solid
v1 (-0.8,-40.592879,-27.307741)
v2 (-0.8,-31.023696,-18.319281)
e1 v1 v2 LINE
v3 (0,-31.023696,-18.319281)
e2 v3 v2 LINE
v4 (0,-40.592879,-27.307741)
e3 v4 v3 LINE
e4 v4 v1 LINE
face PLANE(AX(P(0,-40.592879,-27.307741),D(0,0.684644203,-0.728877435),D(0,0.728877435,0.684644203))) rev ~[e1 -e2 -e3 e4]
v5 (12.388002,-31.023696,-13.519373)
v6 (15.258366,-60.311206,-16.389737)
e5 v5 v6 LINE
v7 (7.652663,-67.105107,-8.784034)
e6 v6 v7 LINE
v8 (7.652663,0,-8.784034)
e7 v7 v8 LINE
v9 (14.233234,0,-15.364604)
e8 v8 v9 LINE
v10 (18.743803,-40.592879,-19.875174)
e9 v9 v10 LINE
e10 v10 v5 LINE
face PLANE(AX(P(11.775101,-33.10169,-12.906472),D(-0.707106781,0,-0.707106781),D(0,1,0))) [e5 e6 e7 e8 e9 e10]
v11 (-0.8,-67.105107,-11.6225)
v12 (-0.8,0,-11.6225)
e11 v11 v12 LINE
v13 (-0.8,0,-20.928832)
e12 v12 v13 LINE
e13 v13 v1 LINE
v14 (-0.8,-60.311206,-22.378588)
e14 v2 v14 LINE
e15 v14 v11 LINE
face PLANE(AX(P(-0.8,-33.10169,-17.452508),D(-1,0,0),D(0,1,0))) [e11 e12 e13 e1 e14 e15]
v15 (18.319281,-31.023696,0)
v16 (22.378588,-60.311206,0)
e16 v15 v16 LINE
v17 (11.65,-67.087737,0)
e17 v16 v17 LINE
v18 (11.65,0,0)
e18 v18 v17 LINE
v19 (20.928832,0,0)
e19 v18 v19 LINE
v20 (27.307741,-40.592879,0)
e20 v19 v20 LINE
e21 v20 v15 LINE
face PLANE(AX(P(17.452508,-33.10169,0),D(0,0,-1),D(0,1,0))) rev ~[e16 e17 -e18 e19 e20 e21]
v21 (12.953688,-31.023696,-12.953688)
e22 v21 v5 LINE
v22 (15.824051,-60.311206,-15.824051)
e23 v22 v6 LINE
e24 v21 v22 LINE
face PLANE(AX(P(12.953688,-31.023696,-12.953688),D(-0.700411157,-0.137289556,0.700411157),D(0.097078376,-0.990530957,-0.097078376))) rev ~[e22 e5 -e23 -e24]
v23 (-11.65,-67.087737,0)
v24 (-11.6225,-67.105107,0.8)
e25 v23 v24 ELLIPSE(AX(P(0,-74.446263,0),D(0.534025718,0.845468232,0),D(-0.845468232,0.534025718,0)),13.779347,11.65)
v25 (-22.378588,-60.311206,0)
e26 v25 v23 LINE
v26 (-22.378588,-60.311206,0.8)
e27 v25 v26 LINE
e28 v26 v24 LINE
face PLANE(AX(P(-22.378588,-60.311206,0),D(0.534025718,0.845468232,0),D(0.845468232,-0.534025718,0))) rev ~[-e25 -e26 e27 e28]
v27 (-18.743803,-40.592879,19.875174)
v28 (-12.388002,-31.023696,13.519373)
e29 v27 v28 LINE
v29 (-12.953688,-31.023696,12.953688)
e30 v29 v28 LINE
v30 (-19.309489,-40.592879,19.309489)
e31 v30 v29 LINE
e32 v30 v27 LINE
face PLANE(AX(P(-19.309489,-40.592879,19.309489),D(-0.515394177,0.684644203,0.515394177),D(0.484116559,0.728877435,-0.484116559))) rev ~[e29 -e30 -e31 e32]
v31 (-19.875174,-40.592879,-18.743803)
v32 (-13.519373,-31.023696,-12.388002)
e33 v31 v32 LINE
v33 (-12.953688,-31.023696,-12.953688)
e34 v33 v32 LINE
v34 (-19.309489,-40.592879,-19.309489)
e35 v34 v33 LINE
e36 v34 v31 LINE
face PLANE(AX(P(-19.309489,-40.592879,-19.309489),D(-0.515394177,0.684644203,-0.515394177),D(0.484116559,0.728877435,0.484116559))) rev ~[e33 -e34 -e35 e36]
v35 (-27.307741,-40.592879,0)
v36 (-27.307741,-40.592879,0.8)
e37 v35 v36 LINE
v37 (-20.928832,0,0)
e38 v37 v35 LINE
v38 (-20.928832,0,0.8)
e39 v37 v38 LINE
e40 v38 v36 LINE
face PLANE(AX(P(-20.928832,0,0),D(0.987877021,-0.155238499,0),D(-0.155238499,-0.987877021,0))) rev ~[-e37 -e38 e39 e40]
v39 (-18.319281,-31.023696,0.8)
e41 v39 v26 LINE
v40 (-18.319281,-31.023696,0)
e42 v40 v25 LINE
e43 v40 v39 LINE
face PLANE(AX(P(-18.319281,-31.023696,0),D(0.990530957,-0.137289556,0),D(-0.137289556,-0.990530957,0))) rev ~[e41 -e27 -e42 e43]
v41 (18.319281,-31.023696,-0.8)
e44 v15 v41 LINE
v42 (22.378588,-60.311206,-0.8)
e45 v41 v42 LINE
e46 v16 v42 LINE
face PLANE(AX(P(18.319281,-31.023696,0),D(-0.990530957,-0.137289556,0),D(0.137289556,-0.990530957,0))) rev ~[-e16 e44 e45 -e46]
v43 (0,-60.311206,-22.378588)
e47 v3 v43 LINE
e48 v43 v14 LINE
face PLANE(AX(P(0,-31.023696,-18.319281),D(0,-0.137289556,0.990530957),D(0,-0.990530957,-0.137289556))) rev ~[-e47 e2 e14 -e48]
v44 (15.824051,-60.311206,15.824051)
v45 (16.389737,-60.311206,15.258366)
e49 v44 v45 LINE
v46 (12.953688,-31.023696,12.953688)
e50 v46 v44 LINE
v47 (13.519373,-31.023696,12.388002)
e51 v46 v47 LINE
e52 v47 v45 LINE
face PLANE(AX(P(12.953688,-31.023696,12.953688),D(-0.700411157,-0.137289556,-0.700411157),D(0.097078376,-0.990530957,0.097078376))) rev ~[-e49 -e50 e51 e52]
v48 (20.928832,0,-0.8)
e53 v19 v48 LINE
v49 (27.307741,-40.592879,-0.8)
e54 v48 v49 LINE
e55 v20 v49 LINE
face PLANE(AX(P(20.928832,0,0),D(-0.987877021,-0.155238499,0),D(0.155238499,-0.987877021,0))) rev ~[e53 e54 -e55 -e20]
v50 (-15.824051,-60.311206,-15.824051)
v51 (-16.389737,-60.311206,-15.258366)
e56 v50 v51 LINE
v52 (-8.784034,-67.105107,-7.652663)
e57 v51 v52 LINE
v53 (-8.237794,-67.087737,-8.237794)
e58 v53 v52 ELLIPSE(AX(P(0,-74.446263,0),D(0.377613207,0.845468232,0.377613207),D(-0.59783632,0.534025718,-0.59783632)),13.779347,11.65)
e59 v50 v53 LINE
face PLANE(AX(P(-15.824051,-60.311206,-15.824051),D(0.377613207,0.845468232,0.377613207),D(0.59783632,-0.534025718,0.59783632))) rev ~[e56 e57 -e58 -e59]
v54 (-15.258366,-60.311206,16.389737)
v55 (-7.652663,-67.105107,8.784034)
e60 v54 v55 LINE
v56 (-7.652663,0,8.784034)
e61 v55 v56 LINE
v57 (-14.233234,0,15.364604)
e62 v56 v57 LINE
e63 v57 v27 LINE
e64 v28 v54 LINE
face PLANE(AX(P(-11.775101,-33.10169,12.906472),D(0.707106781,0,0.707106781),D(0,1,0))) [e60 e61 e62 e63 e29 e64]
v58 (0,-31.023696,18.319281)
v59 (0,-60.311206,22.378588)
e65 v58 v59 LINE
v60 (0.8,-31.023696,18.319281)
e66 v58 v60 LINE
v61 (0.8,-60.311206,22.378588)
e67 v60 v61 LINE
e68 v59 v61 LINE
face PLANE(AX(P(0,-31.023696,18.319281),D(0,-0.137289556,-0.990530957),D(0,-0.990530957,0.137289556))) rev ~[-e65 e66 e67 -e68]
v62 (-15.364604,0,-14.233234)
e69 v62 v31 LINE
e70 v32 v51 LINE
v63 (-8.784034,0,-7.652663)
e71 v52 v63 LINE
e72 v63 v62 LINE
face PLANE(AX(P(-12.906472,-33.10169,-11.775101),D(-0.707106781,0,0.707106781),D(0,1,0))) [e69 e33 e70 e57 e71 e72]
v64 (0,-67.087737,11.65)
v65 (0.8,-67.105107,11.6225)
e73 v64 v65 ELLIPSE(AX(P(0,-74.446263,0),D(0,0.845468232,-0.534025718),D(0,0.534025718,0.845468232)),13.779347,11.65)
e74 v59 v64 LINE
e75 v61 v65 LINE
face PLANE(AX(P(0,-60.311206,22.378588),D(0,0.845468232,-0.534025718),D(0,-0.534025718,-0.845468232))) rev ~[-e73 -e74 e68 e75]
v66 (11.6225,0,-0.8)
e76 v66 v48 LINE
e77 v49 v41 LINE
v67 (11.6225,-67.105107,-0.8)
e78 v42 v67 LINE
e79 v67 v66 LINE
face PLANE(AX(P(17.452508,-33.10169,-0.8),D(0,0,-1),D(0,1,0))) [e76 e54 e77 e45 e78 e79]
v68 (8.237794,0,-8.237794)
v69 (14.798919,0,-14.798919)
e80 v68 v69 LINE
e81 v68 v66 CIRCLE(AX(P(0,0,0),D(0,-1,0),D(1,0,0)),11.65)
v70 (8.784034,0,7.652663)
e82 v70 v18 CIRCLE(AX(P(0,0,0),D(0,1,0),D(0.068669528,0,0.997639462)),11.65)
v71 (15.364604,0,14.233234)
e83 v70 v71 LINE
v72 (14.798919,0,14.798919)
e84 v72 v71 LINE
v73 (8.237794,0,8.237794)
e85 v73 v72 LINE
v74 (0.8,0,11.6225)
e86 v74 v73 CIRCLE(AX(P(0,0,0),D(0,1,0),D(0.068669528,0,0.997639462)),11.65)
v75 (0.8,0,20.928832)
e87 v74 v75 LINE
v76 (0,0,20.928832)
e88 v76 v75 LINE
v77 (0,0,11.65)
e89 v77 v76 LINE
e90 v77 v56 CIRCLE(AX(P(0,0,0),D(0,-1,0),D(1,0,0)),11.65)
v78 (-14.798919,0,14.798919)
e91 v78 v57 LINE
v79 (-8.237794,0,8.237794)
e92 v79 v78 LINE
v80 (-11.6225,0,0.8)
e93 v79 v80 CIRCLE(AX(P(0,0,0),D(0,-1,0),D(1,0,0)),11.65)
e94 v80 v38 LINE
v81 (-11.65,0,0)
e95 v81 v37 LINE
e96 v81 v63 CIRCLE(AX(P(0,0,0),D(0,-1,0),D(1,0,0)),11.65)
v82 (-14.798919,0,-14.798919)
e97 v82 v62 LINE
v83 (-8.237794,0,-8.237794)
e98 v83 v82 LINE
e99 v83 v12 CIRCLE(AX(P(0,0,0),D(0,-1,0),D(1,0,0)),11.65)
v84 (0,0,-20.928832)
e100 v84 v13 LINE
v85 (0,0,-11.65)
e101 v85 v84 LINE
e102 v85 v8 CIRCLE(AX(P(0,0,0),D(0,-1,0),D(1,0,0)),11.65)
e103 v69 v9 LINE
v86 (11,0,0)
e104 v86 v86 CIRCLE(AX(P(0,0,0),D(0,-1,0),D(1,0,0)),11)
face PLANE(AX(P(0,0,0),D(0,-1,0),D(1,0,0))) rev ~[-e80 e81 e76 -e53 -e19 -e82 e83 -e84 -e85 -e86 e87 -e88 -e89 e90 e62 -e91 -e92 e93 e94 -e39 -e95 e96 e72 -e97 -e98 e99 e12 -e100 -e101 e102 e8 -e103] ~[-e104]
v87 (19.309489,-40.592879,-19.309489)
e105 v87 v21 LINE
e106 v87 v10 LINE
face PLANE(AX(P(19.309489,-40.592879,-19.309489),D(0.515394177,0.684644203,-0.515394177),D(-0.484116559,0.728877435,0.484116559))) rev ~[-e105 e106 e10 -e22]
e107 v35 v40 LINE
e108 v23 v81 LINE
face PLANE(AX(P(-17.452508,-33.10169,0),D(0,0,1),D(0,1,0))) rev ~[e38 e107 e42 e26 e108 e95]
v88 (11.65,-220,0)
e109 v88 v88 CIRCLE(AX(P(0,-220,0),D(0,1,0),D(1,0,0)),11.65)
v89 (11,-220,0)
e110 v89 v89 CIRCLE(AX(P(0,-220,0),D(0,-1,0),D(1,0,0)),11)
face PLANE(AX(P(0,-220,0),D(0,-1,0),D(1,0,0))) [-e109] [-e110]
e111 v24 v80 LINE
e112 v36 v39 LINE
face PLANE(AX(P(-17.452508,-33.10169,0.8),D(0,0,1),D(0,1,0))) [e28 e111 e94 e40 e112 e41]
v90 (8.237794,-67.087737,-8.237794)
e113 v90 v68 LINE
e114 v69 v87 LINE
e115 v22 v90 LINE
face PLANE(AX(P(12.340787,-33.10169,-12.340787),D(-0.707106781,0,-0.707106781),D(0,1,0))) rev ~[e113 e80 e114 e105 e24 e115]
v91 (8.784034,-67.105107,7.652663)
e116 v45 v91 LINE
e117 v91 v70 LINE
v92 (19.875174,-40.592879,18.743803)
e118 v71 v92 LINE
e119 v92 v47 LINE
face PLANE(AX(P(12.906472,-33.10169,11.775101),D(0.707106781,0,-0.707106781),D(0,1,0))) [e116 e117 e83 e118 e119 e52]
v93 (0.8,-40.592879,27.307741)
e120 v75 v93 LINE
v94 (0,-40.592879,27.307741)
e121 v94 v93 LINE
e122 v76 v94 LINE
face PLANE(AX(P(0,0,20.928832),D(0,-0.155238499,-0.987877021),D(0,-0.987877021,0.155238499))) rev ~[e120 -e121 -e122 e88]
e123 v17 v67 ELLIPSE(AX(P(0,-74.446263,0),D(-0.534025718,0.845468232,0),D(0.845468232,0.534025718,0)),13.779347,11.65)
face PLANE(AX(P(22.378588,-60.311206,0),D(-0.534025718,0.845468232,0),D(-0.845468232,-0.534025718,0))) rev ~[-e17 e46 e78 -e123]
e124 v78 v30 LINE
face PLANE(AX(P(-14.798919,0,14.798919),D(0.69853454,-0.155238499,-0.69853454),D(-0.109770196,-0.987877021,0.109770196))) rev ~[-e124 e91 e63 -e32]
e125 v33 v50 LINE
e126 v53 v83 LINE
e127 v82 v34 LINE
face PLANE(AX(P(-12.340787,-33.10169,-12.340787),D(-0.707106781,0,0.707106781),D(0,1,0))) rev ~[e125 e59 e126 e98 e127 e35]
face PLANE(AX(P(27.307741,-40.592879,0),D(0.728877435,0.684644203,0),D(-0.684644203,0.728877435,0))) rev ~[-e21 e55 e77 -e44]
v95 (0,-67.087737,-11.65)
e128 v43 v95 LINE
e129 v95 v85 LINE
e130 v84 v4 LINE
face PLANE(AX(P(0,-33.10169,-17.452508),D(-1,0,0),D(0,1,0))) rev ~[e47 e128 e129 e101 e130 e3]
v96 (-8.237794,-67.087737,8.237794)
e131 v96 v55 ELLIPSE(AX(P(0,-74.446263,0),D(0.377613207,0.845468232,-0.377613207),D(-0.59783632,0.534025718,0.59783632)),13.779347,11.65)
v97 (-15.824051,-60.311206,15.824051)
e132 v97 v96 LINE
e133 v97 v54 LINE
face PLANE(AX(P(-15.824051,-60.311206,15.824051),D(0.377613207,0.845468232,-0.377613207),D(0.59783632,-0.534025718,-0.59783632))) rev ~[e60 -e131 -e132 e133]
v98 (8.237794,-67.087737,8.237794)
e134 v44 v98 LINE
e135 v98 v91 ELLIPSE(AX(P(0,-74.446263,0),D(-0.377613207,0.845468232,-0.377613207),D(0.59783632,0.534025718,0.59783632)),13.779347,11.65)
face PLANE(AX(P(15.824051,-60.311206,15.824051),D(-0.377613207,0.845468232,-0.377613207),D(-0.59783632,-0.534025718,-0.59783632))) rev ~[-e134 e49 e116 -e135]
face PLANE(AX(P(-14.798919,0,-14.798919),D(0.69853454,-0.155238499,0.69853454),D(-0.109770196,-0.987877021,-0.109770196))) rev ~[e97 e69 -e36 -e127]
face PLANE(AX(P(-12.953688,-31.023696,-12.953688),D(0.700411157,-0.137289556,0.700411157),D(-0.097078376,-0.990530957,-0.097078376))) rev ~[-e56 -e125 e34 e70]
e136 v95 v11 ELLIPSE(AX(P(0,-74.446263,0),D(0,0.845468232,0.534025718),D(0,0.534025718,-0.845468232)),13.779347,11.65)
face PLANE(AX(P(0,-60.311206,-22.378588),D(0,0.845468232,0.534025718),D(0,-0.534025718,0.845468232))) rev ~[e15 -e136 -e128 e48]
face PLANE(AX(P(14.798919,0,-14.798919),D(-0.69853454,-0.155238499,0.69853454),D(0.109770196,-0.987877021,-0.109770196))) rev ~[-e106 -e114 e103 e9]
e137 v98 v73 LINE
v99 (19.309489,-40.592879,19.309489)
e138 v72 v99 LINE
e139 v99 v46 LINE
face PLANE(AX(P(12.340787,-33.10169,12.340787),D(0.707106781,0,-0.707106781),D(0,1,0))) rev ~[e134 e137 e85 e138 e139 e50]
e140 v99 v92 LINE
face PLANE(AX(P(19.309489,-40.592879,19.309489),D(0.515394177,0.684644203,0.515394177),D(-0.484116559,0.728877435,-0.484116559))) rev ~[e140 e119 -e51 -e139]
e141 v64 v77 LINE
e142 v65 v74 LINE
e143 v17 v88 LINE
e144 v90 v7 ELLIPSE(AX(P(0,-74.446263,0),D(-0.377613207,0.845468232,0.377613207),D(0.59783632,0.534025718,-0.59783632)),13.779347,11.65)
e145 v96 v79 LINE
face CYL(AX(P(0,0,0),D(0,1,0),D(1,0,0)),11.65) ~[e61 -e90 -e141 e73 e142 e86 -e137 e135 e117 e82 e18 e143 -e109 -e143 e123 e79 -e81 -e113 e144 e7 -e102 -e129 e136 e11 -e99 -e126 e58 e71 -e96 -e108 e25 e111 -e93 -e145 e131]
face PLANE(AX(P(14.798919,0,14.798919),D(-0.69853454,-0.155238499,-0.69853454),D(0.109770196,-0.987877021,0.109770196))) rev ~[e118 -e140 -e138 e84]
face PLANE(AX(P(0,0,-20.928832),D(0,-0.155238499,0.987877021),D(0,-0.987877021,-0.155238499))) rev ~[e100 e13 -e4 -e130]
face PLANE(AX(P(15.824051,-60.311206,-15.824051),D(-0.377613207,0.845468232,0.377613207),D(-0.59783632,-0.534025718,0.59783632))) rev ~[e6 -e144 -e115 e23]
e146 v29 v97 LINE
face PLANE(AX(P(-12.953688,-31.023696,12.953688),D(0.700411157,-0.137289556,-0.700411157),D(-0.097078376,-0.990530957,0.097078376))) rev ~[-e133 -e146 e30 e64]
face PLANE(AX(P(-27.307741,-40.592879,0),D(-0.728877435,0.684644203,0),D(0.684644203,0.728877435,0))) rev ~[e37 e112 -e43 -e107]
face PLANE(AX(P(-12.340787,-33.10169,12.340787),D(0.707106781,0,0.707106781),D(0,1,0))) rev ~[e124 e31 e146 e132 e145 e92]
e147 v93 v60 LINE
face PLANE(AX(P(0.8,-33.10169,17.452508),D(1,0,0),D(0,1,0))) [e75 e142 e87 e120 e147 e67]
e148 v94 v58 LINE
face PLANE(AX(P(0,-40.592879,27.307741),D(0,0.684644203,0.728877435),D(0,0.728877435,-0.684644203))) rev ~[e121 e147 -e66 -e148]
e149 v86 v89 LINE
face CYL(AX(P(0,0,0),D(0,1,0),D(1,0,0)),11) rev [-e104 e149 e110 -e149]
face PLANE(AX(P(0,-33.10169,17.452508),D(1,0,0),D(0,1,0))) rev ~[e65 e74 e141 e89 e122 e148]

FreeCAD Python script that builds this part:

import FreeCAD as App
import Part
import Sketcher

V = App.Vector
Q = App.Units.Quantity

doc = App.newDocument("Part")
body = doc.addObject("PartDesign::Body", "Body")

# Sketch on XZ plane
sketch1 = body.newObject("Sketcher::SketchObject", "Sketch")
sketch1.AttachmentSupport = (doc.getObject("XZ_Plane"), [""])
sketch1.MapMode = "FlatFace"
sketch1.addGeometry(Part.Circle(V(0, 0, 0), V(0, 0, 1), 12), False)
sketch1.addGeometry(Part.Circle(V(0, 0, 0), V(0, 0, 1), 11), False)
sketch1.addConstraint(Sketcher.Constraint("Coincident", 0, 3, -1, 1))
sketch1.addConstraint(Sketcher.Constraint("Coincident", 1, 3, -1, 1))
sketch1.addConstraint(Sketcher.Constraint("Diameter", 1, Q("22 mm")))
sketch1.addConstraint(Sketcher.Constraint("Diameter", 0, Q("23.3 mm")))
pad1 = body.newObject("PartDesign::Pad", "Pad")
pad1.Profile = sketch1
pad1.Length = 220

# Sketch on YZ plane
sketch2 = body.newObject("Sketcher::SketchObject", "Sketch001")
sketch2.AttachmentSupport = (doc.getObject("YZ_Plane"), [""])
sketch2.MapMode = "FlatFace"
sketch2.addGeometry(Part.LineSegment(V(-67, 11, 0), V(0, 11, 0)), False)
sketch2.addGeometry(Part.LineSegment(V(0, 11, 0), V(0, 21, 0)), False)
sketch2.addGeometry(Part.LineSegment(V(0, 21, 0), V(-41, 27, 0)), False)
sketch2.addGeometry(Part.LineSegment(V(-41, 27, 0), V(-31, 18, 0)), False)
sketch2.addGeometry(Part.LineSegment(V(-31, 18, 0), V(-60, 22, 0)), False)
sketch2.addGeometry(Part.LineSegment(V(-60, 22, 0), V(-67, 11, 0)), False)
sketch2.addConstraint(Sketcher.Constraint("Coincident", 0, 2, 1, 1))
sketch2.addConstraint(Sketcher.Constraint("Coincident", 1, 2, 2, 1))
sketch2.addConstraint(Sketcher.Constraint("Coincident", 2, 2, 3, 1))
sketch2.addConstraint(Sketcher.Constraint("Coincident", 3, 2, 4, 1))
sketch2.addConstraint(Sketcher.Constraint("Coincident", 4, 2, 5, 1))
sketch2.addConstraint(Sketcher.Constraint("Coincident", 5, 2, 0, 1))
sketch2.addConstraint(Sketcher.Constraint("Horizontal", 0))
sketch2.addConstraint(Sketcher.Constraint("Vertical", 1))
sketch2.addConstraint(Sketcher.Constraint("PointOnObject", 0, 2, -2))
sketch2.addConstraint(Sketcher.Constraint("Distance", 3, Q("13.128659 mm")))
sketch2.addConstraint(Sketcher.Constraint("Distance", 5, Q("13.031972 mm")))
sketch2.addConstraint(Sketcher.Constraint("DistanceX", 0, 1, 0, 2, Q("67.270614 mm")))
sketch2.addConstraint(Sketcher.Constraint("DistanceY", 1, 1, 1, 2, Q("9.568362 mm")))
sketch2.addConstraint(Sketcher.Constraint("DistanceY", -1, 1, 0, 2, Q("11.36047 mm")))
sketch2.addConstraint(Sketcher.Constraint("DistanceX", 2, 2, -1, 1, Q("40.592879 mm")))
sketch2.addConstraint(Sketcher.Constraint("DistanceY", -1, 1, 2, 2, Q("27.307741 mm")))
sketch2.addConstraint(Sketcher.Constraint("DistanceY", -1, 1, 3, 2, Q("18.319281 mm")))
sketch2.addConstraint(Sketcher.Constraint("DistanceY", -1, 1, 4, 2, Q("22.378588 mm")))
pad2 = body.newObject("PartDesign::Pad", "Pad001")
pad2.Profile = sketch2
pad2.Length = 0.8
body2 = doc.addObject("PartDesign::Body", "Body001")
doc.recompute()

body2.BaseFeature = body
doc.recompute()

body3 = doc.addObject("PartDesign::Body", "Body002")
body3.BaseFeature = body
body3.Placement = App.Placement(V(0, 0, 0), App.Rotation(V(0, -1, 0), 45))
boolean = body2.newObject("PartDesign::Boolean", "Boolean")
boolean.Type = "Fuse"
boolean.addObjects([body3])
doc.recompute()

body4 = doc.addObject("PartDesign::Body", "Body003")
body4.BaseFeature = body
body4.Placement = App.Placement(V(0, 0, 0), App.Rotation(V(0, -1, 0), 90))
boolean2 = body2.newObject("PartDesign::Boolean", "Boolean001")
boolean2.Type = "Fuse"
boolean2.addObjects([body4])
doc.recompute()

body5 = doc.addObject("PartDesign::Body", "Body004")
body5.BaseFeature = body
body5.Placement = App.Placement(V(0, 0, 0), App.Rotation(V(0, -1, 0), 135))
boolean3 = body2.newObject("PartDesign::Boolean", "Boolean002")
boolean3.Type = "Fuse"
boolean3.addObjects([body5])
doc.recompute()

body6 = doc.addObject("PartDesign::Body", "Body005")
body6.BaseFeature = body
body6.Placement = App.Placement(V(0, 0, 0), App.Rotation(V(0, -1, 0), 180))
boolean4 = body2.newObject("PartDesign::Boolean", "Boolean003")
boolean4.Type = "Fuse"
boolean4.addObjects([body6])
doc.recompute()

body7 = doc.addObject("PartDesign::Body", "Body006")
body7.BaseFeature = body
body7.Placement = App.Placement(V(0, 0, 0), App.Rotation(V(0, -1, 0), 225))
boolean5 = body2.newObject("PartDesign::Boolean", "Boolean004")
boolean5.Type = "Fuse"
boolean5.addObjects([body7])
doc.recompute()

body8 = doc.addObject("PartDesign::Body", "Body007")
body8.BaseFeature = body
body8.Placement = App.Placement(V(0, 0, 0), App.Rotation(V(0, -1, 0), 270))
boolean6 = body2.newObject("PartDesign::Boolean", "Boolean005")
boolean6.Type = "Fuse"
boolean6.addObjects([body8])
doc.recompute()

body.Placement = App.Placement(V(0, 0, 0), App.Rotation(V(0, -1, 0), 315))
boolean7 = body2.newObject("PartDesign::Boolean", "Boolean006")
boolean7.Type = "Fuse"
boolean7.addObjects([body])

doc.recompute()
